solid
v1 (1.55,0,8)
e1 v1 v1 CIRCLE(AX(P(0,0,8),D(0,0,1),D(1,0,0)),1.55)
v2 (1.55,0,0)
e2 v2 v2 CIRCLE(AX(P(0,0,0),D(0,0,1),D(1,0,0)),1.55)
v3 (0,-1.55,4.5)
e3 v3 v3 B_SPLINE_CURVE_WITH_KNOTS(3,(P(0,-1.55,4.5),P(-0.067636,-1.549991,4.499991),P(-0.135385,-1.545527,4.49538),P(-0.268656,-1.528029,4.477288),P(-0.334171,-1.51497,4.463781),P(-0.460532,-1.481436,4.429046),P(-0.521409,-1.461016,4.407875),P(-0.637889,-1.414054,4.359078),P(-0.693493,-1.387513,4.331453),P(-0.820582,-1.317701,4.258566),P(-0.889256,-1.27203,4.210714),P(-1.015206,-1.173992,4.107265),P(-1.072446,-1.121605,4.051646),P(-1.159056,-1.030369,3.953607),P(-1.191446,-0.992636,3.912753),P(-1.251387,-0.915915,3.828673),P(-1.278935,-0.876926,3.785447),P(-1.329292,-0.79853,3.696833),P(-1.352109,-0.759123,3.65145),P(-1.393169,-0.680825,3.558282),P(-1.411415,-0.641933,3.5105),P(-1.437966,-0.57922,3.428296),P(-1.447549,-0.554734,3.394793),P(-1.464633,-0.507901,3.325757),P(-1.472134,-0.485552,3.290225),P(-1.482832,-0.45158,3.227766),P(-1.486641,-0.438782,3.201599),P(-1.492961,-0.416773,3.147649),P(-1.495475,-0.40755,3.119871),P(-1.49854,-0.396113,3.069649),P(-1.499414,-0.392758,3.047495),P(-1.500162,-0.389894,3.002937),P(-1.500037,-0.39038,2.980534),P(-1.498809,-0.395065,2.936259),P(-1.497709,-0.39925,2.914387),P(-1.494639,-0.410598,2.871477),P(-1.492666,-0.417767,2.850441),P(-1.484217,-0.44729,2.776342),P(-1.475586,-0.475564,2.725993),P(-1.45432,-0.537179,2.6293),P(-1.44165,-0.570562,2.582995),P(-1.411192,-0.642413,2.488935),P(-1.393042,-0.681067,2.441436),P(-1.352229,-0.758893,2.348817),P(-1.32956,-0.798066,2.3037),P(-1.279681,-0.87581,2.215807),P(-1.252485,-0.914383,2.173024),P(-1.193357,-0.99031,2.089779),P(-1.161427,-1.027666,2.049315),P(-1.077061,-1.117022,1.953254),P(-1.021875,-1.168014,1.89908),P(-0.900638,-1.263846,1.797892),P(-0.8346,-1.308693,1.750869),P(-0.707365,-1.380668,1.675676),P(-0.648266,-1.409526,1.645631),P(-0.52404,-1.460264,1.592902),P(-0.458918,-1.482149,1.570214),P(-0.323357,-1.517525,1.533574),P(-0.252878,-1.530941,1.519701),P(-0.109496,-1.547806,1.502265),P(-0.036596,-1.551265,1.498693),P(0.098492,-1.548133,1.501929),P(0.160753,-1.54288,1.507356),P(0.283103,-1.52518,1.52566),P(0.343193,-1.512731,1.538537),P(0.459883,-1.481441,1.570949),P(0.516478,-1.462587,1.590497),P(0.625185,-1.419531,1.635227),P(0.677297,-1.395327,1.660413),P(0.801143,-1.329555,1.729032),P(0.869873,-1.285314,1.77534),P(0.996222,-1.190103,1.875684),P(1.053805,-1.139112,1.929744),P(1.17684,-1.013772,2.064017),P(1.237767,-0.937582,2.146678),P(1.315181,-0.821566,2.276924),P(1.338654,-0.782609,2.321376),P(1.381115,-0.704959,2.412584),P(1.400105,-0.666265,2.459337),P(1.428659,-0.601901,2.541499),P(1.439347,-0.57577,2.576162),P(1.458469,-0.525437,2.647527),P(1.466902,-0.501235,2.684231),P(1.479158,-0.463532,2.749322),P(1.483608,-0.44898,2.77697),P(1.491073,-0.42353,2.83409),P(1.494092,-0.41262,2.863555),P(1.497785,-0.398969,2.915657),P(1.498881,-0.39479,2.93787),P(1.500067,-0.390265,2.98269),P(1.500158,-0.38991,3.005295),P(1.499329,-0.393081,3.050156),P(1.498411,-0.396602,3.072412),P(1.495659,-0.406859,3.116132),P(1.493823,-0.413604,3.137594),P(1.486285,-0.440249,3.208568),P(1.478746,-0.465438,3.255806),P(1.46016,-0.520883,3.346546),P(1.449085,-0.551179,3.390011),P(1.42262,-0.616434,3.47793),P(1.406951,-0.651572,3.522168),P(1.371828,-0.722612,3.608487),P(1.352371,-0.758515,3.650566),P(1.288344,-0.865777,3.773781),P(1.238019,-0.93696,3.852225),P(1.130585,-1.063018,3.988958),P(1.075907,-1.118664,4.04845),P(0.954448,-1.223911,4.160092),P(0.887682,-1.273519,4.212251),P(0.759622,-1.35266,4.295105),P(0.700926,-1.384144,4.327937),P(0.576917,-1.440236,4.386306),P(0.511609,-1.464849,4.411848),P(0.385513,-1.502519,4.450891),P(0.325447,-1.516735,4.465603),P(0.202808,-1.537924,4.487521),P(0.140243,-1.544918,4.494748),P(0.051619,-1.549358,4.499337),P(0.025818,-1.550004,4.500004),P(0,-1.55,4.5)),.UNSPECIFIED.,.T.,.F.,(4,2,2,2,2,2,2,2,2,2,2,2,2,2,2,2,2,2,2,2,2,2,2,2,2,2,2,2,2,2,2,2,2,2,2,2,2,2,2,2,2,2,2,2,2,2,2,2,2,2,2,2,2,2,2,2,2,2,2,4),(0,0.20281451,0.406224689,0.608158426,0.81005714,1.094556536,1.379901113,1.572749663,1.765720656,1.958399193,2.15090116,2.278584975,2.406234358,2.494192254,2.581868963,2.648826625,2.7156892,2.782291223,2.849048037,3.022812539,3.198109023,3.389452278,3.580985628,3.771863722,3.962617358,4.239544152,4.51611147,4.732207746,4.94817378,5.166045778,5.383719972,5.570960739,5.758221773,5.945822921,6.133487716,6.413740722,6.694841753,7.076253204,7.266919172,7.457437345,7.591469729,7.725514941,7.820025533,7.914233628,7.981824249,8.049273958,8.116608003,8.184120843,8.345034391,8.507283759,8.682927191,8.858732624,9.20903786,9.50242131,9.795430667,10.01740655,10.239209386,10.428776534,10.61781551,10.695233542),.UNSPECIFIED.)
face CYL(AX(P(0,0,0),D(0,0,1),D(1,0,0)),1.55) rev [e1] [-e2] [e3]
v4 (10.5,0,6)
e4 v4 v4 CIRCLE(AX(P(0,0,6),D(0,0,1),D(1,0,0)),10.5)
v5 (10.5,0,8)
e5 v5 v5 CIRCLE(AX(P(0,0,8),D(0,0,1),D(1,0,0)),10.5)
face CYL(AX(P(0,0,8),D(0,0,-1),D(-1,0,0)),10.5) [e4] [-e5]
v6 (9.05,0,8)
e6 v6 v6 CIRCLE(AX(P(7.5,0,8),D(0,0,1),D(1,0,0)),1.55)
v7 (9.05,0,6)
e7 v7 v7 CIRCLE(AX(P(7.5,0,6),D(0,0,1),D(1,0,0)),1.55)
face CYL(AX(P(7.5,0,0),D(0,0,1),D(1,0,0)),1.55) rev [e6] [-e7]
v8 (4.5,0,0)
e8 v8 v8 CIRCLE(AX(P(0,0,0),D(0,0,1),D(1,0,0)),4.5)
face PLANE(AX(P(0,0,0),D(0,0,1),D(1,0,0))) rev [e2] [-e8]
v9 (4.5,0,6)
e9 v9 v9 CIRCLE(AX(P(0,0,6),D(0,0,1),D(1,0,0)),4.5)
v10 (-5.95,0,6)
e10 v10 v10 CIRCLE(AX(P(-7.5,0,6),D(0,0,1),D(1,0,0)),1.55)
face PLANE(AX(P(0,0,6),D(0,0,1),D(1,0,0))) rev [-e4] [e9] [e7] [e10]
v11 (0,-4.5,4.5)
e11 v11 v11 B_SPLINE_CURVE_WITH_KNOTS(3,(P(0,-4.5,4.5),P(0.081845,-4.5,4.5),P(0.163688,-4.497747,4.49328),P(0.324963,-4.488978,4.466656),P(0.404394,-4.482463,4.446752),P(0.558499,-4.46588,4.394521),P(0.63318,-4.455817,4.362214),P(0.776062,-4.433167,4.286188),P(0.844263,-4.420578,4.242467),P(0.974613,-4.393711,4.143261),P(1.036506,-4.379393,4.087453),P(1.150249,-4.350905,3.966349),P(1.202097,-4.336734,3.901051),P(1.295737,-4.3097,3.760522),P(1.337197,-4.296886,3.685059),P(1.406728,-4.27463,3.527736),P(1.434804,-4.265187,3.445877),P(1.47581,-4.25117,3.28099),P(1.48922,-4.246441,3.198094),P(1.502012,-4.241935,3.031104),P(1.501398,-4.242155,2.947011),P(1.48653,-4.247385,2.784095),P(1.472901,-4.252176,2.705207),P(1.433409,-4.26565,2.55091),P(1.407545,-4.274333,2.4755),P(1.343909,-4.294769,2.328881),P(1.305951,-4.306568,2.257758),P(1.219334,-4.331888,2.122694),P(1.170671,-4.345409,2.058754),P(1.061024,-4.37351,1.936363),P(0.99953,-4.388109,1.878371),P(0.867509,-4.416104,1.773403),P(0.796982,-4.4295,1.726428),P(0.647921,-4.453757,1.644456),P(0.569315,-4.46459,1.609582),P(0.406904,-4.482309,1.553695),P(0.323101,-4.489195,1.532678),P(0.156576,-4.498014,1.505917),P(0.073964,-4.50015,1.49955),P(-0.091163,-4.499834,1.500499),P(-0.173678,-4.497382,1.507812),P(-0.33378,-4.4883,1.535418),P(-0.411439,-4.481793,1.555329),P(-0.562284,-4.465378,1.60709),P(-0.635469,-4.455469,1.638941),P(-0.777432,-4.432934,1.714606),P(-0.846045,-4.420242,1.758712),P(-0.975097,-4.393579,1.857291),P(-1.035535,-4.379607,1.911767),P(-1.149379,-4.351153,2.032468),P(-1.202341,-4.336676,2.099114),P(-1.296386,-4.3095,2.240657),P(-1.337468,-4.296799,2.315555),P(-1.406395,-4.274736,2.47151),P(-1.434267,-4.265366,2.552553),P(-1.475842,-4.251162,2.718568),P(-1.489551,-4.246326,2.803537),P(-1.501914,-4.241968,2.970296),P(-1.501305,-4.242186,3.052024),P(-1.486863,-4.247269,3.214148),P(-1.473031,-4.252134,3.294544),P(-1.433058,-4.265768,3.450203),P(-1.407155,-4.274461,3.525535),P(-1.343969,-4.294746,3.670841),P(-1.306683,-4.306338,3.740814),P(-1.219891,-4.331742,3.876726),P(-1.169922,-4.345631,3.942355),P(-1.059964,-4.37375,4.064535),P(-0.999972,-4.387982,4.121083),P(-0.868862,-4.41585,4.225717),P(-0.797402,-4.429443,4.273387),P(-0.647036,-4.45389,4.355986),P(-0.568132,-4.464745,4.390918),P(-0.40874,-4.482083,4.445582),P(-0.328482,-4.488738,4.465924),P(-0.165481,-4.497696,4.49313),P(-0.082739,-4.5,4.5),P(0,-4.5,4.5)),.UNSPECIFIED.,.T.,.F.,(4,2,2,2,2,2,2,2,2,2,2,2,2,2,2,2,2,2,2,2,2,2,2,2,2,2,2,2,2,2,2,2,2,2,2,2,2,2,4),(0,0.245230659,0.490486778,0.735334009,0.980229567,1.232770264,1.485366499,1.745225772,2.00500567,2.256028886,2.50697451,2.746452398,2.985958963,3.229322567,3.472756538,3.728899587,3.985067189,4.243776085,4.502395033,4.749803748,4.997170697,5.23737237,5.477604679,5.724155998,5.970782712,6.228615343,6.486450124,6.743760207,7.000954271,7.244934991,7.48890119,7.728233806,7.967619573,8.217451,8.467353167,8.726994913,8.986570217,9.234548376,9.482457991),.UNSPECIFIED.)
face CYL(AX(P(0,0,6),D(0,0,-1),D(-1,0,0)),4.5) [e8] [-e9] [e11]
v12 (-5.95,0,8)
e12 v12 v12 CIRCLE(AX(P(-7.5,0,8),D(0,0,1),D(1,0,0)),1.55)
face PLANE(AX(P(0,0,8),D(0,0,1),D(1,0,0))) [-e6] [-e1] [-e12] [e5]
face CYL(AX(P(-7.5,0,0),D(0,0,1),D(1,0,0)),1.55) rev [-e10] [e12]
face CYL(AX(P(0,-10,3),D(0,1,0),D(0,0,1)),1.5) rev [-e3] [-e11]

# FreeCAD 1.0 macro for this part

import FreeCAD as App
import Part
import Sketcher

doc = App.newDocument("Part")
body = doc.addObject("PartDesign::Body", "Body")

# Sketch on XY plane
sketch1 = body.newObject("Sketcher::SketchObject", "Sketch")
sketch1.AttachmentSupport = (doc.getObject("XY_Plane"), [""])
sketch1.MapMode = "FlatFace"
sketch1.addGeometry(Part.Circle(App.Vector(0, 0, 0), App.Vector(0, 0, 1), 4.5), False)
sketch1.addConstraint([
    Sketcher.Constraint("Coincident", 0, 3, -1, 1),
    Sketcher.Constraint("Diameter", 0, 9.0),
])
pad1 = body.newObject("PartDesign::Pad", "Pad")
pad1.Profile = sketch1
pad1.Length = 6

# Sketch on XY plane
sketch2 = body.newObject("Sketcher::SketchObject", "Sketch001")
sketch2.AttachmentSupport = (doc.getObject("XY_Plane"), [""])
sketch2.MapMode = "FlatFace"
sketch2.AttachmentOffset = App.Placement(App.Vector(0, 0, 6), App.Rotation())
sketch2.addGeometry(Part.Circle(App.Vector(0, 0, 0), App.Vector(0, 0, 1), 10.5), False)
sketch2.addConstraint([
    Sketcher.Constraint("Coincident", 0, 3, -1, 1),
    Sketcher.Constraint("Diameter", 0, 21.0),
])
pad2 = body.newObject("PartDesign::Pad", "Pad001")
pad2.Profile = sketch2
pad2.Length = 2

# Sketch on XY plane
sketch3 = body.newObject("Sketcher::SketchObject", "Sketch002")
sketch3.AttachmentSupport = (doc.getObject("XY_Plane"), [""])
sketch3.MapMode = "FlatFace"
sketch3.AttachmentOffset = App.Placement(App.Vector(0, 0, 8), App.Rotation())
sketch3.addGeometry(Part.Circle(App.Vector(0, 0, 0), App.Vector(0, 0, 1), 1.55), False)
sketch3.addConstraint([
    Sketcher.Constraint("Coincident", 0, 3, -1, 1),
    Sketcher.Constraint("Diameter", 0, 3.1),
])
pocket1 = body.newObject("PartDesign::Pocket", "Pocket")
pocket1.Profile = sketch3
pocket1.Type = "ThroughAll"

# Sketch on XY plane
sketch4 = body.newObject("Sketcher::SketchObject", "Sketch003")
sketch4.AttachmentSupport = (doc.getObject("XY_Plane"), [""])
sketch4.MapMode = "FlatFace"
sketch4.AttachmentOffset = App.Placement(App.Vector(0, 0, 8), App.Rotation())
sketch4.addGeometry([
    Part.Circle(App.Vector(-7.5, 0, 0), App.Vector(0, 0, 1), 1.55),
    Part.Circle(App.Vector(7.5, 0, 0), App.Vector(0, 0, 1), 1.55),
], False)
sketch4.addConstraint([
    Sketcher.Constraint("Equal", 0, 1),
    Sketcher.Constraint("Symmetric", 0, 3, 1, 3, -1, 1),
    Sketcher.Constraint("PointOnObject", 0, 3, -1),
    Sketcher.Constraint("Diameter", 0, 3.1),
    Sketcher.Constraint("DistanceX", 0, 3, 1, 3, 15.0),
])
pocket2 = body.newObject("PartDesign::Pocket", "Pocket001")
pocket2.Profile = sketch4
pocket2.Type = "ThroughAll"

# Sketch on XZ plane
sketch5 = body.newObject("Sketcher::SketchObject", "Sketch004")
sketch5.AttachmentSupport = (doc.getObject("XZ_Plane"), [""])
sketch5.MapMode = "FlatFace"
sketch5.addGeometry(Part.Circle(App.Vector(0, 3, 0), App.Vector(0, 0, 1), 1.5), False)
sketch5.addConstraint([
    Sketcher.Constraint("PointOnObject", 0, 3, -2),
    Sketcher.Constraint("Diameter", 0, 3.0),
    Sketcher.Constraint("DistanceY", -1, 1, 0, 3, 3.0),
])
pocket3 = body.newObject("PartDesign::Pocket", "Pocket002")
pocket3.Profile = sketch5
pocket3.Length = 10
pocket3.Reversed = True

doc.recompute()
